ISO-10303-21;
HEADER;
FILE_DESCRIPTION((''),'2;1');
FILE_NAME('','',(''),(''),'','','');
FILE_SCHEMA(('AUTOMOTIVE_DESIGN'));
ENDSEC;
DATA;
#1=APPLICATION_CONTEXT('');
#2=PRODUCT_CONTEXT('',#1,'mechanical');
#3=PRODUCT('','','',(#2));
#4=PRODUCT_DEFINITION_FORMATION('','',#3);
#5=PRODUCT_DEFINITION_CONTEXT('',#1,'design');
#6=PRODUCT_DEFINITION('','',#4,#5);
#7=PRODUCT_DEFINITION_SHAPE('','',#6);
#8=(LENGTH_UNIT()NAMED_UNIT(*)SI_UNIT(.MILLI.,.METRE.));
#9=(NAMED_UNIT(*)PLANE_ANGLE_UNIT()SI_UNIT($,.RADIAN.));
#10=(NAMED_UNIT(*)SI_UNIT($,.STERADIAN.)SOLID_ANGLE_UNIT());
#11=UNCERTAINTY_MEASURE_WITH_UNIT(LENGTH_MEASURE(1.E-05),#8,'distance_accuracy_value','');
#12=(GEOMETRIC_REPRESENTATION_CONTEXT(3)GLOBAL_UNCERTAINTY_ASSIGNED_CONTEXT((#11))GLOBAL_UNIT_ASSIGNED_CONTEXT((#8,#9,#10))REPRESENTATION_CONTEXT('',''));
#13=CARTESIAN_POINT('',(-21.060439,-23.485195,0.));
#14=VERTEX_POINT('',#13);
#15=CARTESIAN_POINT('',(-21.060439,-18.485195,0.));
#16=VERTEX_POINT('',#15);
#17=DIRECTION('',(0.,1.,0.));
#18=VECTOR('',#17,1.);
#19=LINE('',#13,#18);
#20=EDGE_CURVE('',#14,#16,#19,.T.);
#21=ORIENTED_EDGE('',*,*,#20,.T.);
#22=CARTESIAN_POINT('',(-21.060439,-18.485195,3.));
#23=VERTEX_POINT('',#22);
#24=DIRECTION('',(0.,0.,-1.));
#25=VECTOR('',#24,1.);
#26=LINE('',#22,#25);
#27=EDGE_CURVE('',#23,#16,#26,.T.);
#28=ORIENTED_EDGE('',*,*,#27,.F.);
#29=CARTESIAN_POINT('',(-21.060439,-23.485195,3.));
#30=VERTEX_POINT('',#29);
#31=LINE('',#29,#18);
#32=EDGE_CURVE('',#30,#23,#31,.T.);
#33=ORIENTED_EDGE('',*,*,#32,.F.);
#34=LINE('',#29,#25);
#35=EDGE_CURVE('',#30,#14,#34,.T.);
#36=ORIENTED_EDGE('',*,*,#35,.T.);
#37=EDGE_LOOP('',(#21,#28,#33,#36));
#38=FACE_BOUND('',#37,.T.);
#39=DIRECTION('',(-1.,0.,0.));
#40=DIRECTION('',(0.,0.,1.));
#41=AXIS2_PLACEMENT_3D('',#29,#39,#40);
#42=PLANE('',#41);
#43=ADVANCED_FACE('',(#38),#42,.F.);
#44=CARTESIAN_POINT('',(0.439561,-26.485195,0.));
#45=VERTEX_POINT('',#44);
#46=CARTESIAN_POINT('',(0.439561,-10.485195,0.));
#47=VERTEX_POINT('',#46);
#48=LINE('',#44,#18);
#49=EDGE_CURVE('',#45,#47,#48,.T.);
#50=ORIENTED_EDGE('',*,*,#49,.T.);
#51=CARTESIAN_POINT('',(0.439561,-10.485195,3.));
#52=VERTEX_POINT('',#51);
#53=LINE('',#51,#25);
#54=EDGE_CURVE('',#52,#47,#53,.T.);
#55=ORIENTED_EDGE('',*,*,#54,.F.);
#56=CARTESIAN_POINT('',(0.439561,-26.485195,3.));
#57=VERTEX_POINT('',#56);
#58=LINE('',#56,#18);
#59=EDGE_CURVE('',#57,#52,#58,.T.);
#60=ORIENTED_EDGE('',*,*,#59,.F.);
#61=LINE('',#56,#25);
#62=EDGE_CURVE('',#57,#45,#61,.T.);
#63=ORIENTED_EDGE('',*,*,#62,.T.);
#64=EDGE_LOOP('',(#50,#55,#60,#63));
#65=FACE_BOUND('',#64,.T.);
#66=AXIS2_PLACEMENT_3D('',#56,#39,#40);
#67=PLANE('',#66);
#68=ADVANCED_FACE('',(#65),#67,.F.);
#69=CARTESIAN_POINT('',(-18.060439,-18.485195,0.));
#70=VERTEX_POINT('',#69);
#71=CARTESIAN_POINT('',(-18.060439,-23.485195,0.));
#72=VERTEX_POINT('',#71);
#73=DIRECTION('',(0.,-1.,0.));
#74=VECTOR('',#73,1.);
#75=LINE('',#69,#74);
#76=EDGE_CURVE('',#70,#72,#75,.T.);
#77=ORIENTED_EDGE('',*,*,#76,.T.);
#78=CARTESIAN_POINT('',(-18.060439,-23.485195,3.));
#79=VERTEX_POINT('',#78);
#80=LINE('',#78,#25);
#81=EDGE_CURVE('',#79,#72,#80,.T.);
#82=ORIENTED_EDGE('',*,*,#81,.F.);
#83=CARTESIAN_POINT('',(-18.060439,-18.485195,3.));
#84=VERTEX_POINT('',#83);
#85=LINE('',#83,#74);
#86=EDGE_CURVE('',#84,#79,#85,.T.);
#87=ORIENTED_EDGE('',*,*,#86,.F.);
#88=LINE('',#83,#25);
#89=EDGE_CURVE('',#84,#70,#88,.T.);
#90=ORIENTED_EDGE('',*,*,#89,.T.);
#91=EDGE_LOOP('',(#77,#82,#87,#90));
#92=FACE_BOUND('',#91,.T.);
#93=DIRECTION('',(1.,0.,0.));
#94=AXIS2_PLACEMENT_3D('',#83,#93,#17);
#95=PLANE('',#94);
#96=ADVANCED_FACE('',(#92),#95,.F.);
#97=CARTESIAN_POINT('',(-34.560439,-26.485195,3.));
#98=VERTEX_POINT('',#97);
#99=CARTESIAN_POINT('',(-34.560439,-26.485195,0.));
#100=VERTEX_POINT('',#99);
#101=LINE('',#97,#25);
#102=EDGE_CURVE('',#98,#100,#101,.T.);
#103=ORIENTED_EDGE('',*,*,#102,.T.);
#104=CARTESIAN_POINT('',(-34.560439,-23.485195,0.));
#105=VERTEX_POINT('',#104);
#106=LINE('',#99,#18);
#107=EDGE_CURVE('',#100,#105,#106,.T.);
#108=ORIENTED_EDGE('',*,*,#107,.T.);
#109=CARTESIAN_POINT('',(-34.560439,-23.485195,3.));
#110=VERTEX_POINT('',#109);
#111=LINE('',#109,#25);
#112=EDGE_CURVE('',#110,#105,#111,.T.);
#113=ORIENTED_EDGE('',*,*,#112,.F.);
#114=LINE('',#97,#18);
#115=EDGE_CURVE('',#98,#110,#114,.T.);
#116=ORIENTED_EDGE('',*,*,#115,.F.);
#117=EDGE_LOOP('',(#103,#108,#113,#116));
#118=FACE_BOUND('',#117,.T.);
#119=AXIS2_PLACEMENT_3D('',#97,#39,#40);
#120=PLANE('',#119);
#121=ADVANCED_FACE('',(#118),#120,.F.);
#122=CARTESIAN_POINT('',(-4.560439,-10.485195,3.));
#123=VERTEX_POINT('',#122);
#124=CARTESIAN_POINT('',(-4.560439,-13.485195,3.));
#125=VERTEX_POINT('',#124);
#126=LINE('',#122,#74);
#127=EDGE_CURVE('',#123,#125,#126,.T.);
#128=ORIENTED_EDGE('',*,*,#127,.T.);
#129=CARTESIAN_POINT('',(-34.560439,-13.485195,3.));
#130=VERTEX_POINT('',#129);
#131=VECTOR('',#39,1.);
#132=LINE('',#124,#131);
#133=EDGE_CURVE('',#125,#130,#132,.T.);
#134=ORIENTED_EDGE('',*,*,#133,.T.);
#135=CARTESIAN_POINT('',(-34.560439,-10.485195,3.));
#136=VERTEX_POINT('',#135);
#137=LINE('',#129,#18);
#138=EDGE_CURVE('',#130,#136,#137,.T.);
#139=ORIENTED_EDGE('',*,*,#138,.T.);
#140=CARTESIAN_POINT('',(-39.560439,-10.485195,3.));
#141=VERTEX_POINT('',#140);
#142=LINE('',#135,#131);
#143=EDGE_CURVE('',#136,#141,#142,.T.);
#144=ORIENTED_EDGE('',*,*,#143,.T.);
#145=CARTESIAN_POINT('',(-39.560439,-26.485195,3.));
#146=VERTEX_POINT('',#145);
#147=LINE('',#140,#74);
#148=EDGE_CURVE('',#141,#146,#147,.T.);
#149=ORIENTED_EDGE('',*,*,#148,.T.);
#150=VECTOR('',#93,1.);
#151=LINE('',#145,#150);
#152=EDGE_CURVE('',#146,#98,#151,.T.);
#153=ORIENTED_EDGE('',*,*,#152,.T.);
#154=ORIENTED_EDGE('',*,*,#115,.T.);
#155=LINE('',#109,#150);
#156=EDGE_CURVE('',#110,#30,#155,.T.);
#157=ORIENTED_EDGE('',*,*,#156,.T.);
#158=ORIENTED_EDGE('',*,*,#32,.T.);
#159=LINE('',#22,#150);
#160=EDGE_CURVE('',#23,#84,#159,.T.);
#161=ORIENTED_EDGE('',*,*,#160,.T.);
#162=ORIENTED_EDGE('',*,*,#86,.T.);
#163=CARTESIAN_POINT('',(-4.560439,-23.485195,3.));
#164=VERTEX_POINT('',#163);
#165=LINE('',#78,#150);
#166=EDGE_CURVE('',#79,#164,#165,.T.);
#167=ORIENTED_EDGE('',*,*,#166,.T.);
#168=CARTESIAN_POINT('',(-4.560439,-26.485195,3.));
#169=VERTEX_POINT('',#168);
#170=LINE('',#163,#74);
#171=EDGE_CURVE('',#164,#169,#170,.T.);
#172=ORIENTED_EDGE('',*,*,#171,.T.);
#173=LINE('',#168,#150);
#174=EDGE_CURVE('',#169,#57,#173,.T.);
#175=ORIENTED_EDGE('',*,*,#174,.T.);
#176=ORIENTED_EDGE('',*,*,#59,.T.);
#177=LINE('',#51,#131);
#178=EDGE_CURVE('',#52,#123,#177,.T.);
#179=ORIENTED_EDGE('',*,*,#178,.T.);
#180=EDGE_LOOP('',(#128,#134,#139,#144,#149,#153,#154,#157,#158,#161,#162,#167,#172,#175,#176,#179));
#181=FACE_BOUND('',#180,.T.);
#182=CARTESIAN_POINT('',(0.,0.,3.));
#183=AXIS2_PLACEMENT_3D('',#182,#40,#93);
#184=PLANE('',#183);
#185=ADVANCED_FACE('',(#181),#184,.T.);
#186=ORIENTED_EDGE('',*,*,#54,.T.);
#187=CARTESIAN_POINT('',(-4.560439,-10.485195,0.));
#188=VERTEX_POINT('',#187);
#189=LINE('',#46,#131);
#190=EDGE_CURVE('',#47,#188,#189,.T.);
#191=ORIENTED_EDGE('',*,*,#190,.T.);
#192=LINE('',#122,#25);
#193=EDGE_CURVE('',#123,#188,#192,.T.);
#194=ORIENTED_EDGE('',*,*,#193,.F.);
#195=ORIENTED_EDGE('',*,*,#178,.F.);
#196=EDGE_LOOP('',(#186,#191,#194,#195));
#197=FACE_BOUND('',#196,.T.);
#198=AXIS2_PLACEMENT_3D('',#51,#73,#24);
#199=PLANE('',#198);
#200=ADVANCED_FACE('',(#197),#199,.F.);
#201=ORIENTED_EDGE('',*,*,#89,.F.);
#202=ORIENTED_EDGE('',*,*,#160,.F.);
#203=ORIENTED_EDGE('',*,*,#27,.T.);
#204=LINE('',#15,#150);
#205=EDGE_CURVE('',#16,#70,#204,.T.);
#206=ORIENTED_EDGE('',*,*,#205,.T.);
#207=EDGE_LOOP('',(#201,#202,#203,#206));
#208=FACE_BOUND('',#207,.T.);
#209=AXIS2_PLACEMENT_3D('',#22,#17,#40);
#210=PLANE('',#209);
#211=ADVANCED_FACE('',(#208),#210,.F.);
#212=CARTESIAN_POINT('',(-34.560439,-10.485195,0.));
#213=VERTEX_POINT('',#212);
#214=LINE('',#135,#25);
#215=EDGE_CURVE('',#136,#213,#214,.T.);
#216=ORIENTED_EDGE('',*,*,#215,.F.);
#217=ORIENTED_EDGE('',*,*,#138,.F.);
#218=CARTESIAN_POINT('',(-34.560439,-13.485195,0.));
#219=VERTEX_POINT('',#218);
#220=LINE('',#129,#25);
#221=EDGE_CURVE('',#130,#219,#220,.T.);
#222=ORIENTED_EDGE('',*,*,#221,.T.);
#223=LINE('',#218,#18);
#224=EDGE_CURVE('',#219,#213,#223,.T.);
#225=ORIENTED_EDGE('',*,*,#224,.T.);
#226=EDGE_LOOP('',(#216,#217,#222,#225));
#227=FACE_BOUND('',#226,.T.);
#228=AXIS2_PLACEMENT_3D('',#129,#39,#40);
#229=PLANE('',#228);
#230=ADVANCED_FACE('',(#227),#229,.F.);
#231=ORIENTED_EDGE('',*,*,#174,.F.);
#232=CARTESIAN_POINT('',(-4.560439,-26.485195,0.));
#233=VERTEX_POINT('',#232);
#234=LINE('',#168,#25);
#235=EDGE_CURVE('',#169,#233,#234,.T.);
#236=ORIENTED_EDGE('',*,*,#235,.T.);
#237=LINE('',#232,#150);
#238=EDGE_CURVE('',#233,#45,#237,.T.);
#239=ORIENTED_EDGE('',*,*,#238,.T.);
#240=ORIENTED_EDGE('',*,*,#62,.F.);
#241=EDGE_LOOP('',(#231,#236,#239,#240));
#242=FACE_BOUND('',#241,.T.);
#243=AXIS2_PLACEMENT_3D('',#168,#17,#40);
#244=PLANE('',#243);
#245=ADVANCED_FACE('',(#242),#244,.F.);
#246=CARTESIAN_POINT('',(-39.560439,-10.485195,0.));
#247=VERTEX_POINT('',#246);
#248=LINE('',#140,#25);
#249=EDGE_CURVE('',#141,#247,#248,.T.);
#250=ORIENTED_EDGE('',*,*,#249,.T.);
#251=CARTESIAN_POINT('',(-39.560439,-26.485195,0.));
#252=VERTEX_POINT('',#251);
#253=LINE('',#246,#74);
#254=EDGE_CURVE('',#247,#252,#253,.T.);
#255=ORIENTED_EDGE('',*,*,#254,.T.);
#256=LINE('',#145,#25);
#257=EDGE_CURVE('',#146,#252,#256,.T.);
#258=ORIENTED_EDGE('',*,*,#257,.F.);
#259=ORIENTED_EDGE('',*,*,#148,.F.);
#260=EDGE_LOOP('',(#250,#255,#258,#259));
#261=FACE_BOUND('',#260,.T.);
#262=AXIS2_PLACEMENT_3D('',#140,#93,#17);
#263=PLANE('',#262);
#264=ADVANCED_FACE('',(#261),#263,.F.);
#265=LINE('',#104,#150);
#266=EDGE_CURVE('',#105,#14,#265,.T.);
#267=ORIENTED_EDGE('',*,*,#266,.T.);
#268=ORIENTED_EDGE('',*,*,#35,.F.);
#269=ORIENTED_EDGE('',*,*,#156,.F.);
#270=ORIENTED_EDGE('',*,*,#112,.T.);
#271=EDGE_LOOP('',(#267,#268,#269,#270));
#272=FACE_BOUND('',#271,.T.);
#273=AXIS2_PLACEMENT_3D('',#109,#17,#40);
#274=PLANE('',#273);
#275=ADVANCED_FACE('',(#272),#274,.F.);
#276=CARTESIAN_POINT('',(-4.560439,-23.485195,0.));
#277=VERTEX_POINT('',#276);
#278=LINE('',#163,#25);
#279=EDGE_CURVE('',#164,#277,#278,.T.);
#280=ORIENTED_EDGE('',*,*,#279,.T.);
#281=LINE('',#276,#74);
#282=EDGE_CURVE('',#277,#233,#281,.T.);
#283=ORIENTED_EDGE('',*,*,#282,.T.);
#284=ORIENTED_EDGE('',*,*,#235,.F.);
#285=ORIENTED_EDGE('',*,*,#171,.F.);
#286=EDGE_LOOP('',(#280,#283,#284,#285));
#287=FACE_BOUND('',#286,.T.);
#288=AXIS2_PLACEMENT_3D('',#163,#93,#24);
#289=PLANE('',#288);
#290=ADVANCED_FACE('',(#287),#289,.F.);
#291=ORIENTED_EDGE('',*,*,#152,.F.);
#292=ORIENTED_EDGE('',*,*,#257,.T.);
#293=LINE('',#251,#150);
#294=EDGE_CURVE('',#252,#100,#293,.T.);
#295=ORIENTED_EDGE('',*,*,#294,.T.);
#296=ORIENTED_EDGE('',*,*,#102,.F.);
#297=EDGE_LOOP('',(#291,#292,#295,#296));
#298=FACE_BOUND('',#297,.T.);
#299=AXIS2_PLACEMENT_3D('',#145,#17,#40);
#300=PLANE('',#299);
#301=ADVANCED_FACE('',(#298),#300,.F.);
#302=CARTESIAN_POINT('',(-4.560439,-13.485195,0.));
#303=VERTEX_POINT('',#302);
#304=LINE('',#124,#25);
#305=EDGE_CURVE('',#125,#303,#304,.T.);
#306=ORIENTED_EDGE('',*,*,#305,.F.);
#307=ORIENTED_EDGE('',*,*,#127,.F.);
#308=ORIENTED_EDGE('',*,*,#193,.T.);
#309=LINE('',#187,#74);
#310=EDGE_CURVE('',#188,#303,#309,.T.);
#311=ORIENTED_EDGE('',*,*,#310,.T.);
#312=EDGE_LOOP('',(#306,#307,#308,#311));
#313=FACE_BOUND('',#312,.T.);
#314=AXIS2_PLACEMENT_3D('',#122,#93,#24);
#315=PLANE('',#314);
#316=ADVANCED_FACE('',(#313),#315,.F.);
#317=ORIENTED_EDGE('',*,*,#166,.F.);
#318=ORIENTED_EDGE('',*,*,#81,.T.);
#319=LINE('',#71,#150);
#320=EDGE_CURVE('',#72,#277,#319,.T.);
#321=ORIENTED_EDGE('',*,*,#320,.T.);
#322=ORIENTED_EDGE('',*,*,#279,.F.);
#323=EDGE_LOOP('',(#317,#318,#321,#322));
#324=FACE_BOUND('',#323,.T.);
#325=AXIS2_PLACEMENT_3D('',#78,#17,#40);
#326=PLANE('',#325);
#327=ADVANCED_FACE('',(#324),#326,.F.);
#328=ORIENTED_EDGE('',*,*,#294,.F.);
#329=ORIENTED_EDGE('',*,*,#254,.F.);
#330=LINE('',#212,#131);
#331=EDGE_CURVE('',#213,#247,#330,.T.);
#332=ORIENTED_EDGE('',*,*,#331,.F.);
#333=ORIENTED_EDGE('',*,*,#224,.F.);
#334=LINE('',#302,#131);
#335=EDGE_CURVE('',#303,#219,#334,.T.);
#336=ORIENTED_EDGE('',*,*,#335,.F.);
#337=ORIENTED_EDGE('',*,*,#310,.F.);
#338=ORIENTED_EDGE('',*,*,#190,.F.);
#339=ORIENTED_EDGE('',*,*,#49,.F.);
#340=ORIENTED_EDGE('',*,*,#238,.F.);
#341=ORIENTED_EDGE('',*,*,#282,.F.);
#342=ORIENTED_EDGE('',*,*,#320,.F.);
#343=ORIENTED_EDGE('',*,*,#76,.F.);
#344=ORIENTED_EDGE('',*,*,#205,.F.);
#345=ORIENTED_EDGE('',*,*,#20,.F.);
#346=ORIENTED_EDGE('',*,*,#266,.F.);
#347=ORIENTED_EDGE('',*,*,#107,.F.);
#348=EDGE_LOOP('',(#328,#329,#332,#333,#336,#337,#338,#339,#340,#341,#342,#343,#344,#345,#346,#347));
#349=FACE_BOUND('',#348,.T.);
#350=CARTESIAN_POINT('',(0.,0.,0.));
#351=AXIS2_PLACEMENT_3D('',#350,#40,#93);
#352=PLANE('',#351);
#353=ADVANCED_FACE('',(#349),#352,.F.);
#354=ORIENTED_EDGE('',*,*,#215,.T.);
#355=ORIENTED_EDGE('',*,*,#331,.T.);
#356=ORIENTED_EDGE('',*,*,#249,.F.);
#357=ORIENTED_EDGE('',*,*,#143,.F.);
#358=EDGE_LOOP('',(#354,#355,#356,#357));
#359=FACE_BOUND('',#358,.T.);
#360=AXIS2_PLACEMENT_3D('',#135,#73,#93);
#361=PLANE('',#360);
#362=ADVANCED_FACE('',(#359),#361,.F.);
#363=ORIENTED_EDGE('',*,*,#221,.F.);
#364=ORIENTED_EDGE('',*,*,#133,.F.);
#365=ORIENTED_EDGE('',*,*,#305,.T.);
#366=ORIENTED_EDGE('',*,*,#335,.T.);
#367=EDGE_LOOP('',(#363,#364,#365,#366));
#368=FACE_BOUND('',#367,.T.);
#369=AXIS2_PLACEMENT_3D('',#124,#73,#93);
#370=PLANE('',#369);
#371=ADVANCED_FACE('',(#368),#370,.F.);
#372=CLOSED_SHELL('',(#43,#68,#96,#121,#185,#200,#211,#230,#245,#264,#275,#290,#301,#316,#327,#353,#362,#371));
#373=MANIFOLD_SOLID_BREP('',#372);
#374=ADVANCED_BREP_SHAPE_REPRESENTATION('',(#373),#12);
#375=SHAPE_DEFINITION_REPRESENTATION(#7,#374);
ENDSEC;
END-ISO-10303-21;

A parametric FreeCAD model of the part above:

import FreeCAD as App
import Part
import Sketcher

doc = App.newDocument("Part")
body = doc.addObject("PartDesign::Body", "Body")

sketch1 = body.newObject("Sketcher::SketchObject", "Sketch")
sketch1.AttachmentSupport = (doc.getObject("XY_Plane"), [""])
sketch1.MapMode = "FlatFace"
sketch1.addGeometry(Part.LineSegment(App.Vector(-39.6, -10.5, 0), App.Vector(-39.6, -26.5, 0)), False)
sketch1.addGeometry(Part.LineSegment(App.Vector(-39.6, -26.5, 0), App.Vector(-34.6, -26.5, 0)), False)
sketch1.addGeometry(Part.LineSegment(App.Vector(-34.6, -26.5, 0), App.Vector(-34.6, -23.5, 0)), False)
sketch1.addGeometry(Part.LineSegment(App.Vector(-34.6, -23.5, 0), App.Vector(-21.1, -23.5, 0)), False)
sketch1.addGeometry(Part.LineSegment(App.Vector(-21.1, -23.5, 0), App.Vector(-21.1, -18.5, 0)), False)
sketch1.addGeometry(Part.LineSegment(App.Vector(-21.1, -18.5, 0), App.Vector(-18.1, -18.5, 0)), False)
sketch1.addGeometry(Part.LineSegment(App.Vector(-18.1, -18.5, 0), App.Vector(-18.1, -23.5, 0)), False)
sketch1.addGeometry(Part.LineSegment(App.Vector(-18.1, -23.5, 0), App.Vector(-4.6, -23.5, 0)), False)
sketch1.addGeometry(Part.LineSegment(App.Vector(-4.6, -23.5, 0), App.Vector(-4.6, -26.5, 0)), False)
sketch1.addGeometry(Part.LineSegment(App.Vector(-4.6, -26.5, 0), App.Vector(0.4, -26.5, 0)), False)
sketch1.addGeometry(Part.LineSegment(App.Vector(0.4, -26.5, 0), App.Vector(0.4, -10.5, 0)), False)
sketch1.addGeometry(Part.LineSegment(App.Vector(0.4, -10.5, 0), App.Vector(-4.6, -10.5, 0)), False)
sketch1.addGeometry(Part.LineSegment(App.Vector(-4.6, -10.5, 0), App.Vector(-4.6, -13.5, 0)), False)
sketch1.addGeometry(Part.LineSegment(App.Vector(-4.6, -13.5, 0), App.Vector(-34.6, -13.5, 0)), False)
sketch1.addGeometry(Part.LineSegment(App.Vector(-34.6, -13.5, 0), App.Vector(-34.6, -10.5, 0)), False)
sketch1.addGeometry(Part.LineSegment(App.Vector(-34.6, -10.5, 0), App.Vector(-39.6, -10.5, 0)), False)
sketch1.addConstraint(Sketcher.Constraint("Coincident", 0, 2, 1, 1))
sketch1.addConstraint(Sketcher.Constraint("Coincident", 1, 2, 2, 1))
sketch1.addConstraint(Sketcher.Constraint("Coincident", 2, 2, 3, 1))
sketch1.addConstraint(Sketcher.Constraint("Coincident", 3, 2, 4, 1))
sketch1.addConstraint(Sketcher.Constraint("Coincident", 4, 2, 5, 1))
sketch1.addConstraint(Sketcher.Constraint("Coincident", 5, 2, 6, 1))
sketch1.addConstraint(Sketcher.Constraint("Coincident", 6, 2, 7, 1))
sketch1.addConstraint(Sketcher.Constraint("Coincident", 7, 2, 8, 1))
sketch1.addConstraint(Sketcher.Constraint("Coincident", 8, 2, 9, 1))
sketch1.addConstraint(Sketcher.Constraint("Coincident", 9, 2, 10, 1))
sketch1.addConstraint(Sketcher.Constraint("Coincident", 10, 2, 11, 1))
sketch1.addConstraint(Sketcher.Constraint("Coincident", 11, 2, 12, 1))
sketch1.addConstraint(Sketcher.Constraint("Coincident", 12, 2, 13, 1))
sketch1.addConstraint(Sketcher.Constraint("Coincident", 13, 2, 14, 1))
sketch1.addConstraint(Sketcher.Constraint("Coincident", 14, 2, 15, 1))
sketch1.addConstraint(Sketcher.Constraint("Coincident", 15, 2, 0, 1))
sketch1.addConstraint(Sketcher.Constraint("Vertical", 0))
sketch1.addConstraint(Sketcher.Constraint("Horizontal", 1))
sketch1.addConstraint(Sketcher.Constraint("Vertical", 2))
sketch1.addConstraint(Sketcher.Constraint("Horizontal", 3))
sketch1.addConstraint(Sketcher.Constraint("Vertical", 4))
sketch1.addConstraint(Sketcher.Constraint("Horizontal", 5))
sketch1.addConstraint(Sketcher.Constraint("Vertical", 6))
sketch1.addConstraint(Sketcher.Constraint("Horizontal", 7))
sketch1.addConstraint(Sketcher.Constraint("Vertical", 8))
sketch1.addConstraint(Sketcher.Constraint("Horizontal", 9))
sketch1.addConstraint(Sketcher.Constraint("Vertical", 10))
sketch1.addConstraint(Sketcher.Constraint("Horizontal", 11))
sketch1.addConstraint(Sketcher.Constraint("Vertical", 12))
sketch1.addConstraint(Sketcher.Constraint("Horizontal", 13))
sketch1.addConstraint(Sketcher.Constraint("Vertical", 14))
sketch1.addConstraint(Sketcher.Constraint("Horizontal", 15))
sketch1.addConstraint(Sketcher.Constraint("Horizontal", 3, 2, 6, 2))
sketch1.addConstraint(Sketcher.Constraint("Horizontal", 1, 2, 8, 2))
sketch1.addConstraint(Sketcher.Constraint("Horizontal", 11, 2, 14, 2))
sketch1.addConstraint(Sketcher.Constraint("Vertical", 8, 2, 11, 2))
sketch1.addConstraint(Sketcher.Constraint("Vertical", 2, 2, 13, 2))
sketch1.addConstraint(Sketcher.Constraint("Equal", 3, 7))
sketch1.addConstraint(Sketcher.Constraint("Equal", 1, 9))
sketch1.addConstraint(Sketcher.Constraint("Equal", 5, 2))
sketch1.addConstraint(Sketcher.Constraint("Equal", 15, 4))
sketch1.addConstraint(Sketcher.Constraint("Equal", 8, 12))
sketch1.addConstraint(Sketcher.Constraint("DistanceX", 1, 1, 1, 2, 5.0))
sketch1.addConstraint(Sketcher.Constraint("DistanceX", 5, 1, 5, 2, 3.0))
sketch1.addConstraint(Sketcher.Constraint("DistanceX", 13, 2, 13, 1, 30.0))
sketch1.addConstraint(Sketcher.Constraint("DistanceY", 0, 2, 0, 1, 16.0))
sketch1.addConstraint(Sketcher.Constraint("DistanceX", 0, 2, -1, 1, 39.560439))
sketch1.addConstraint(Sketcher.Constraint("DistanceY", 0, 2, -1, 1, 26.485195))
pad1 = body.newObject("PartDesign::Pad", "Pad")
pad1.Profile = sketch1
pad1.Length = 3

doc.recompute()
